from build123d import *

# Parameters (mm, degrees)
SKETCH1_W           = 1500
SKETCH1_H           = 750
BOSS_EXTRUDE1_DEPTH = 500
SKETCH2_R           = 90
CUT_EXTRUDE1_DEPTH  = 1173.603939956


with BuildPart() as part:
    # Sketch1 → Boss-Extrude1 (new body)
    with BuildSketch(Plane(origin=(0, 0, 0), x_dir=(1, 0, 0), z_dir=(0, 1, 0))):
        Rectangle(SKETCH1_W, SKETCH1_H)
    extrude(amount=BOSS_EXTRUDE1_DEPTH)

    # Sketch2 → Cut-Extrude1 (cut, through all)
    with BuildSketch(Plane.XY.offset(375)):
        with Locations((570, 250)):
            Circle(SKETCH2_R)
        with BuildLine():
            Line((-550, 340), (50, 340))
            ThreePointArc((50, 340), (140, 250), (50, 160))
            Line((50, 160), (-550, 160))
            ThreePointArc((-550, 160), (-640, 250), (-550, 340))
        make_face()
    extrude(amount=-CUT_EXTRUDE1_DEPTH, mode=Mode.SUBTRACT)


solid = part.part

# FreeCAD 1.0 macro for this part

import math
import FreeCAD as App
import Part
import Sketcher
from FreeCAD import Vector

doc = App.newDocument("Part")
body = doc.addObject("PartDesign::Body", "Body")

# Sketch on XZ plane
sketch1 = body.newObject("Sketcher::SketchObject", "Sketch")
sketch1.AttachmentSupport = (doc.getObject("XZ_Plane"), [""])
sketch1.MapMode = "FlatFace"
sketch1.addGeometry([
    Part.LineSegment(Vector(-750, -375, 0), Vector(-750, 375, 0)),
    Part.LineSegment(Vector(-750, 375, 0), Vector(750, 375, 0)),
    Part.LineSegment(Vector(750, 375, 0), Vector(750, -375, 0)),
    Part.LineSegment(Vector(750, -375, 0), Vector(-750, -375, 0)),
], False)
sketch1.addConstraint([
    Sketcher.Constraint("Coincident", 0, 2, 1, 1),
    Sketcher.Constraint("Coincident", 1, 2, 2, 1),
    Sketcher.Constraint("Coincident", 2, 2, 3, 1),
    Sketcher.Constraint("Coincident", 3, 2, 0, 1),
    Sketcher.Constraint("Vertical", 0),
    Sketcher.Constraint("Horizontal", 1),
    Sketcher.Constraint("Vertical", 2),
    Sketcher.Constraint("Horizontal", 3),
    Sketcher.Constraint("Symmetric", 0, 2, 2, 2, -1, 1),
    Sketcher.Constraint("DistanceX", 1, 1, 1, 2, 1500.0),
    Sketcher.Constraint("DistanceY", 0, 1, 0, 2, 750.0),
])
pad1 = body.newObject("PartDesign::Pad", "Pad")
pad1.Profile = sketch1
pad1.Length = 500
pad1.Reversed = True

# Sketch on XY plane
sketch2 = body.newObject("Sketcher::SketchObject", "Sketch001")
sketch2.AttachmentSupport = (doc.getObject("XY_Plane"), [""])
sketch2.MapMode = "FlatFace"
sketch2.AttachmentOffset = App.Placement(Vector(0, 0, 375), App.Rotation())
sketch2.addGeometry([
    Part.Circle(Vector(570, 250, 0), Vector(0, 0, 1), 90),  # 0
    Part.LineSegment(Vector(50, 340, 0), Vector(-550, 340, 0)),  # 1
    Part.ArcOfCircle(Part.Circle(Vector(-550, 250, 0), Vector(0, 0, 1), 90), math.radians(90), math.radians(270)),  # 2
    Part.LineSegment(Vector(-550, 160, 0), Vector(50, 160, 0)),  # 3
    Part.ArcOfCircle(Part.Circle(Vector(50, 250, 0), Vector(0, 0, 1), 90), math.radians(-90), math.radians(90)),  # 4
], False)
sketch2.addConstraint([
    Sketcher.Constraint("Tangent", 1, 2, 2, 1),
    Sketcher.Constraint("Tangent", 2, 2, 3, 1),
    Sketcher.Constraint("Tangent", 3, 2, 4, 1),
    Sketcher.Constraint("Tangent", 4, 2, 1, 1),
    Sketcher.Constraint("Horizontal", 1),
    Sketcher.Constraint("Horizontal", 3),
    Sketcher.Constraint("Equal", 0, 2),
    Sketcher.Constraint("Horizontal", 0, 3, 2, 3),
    Sketcher.Constraint("Diameter", 0, 180.0),
    Sketcher.Constraint("DistanceX", 1, 2, 1, 1, 600.0),
    Sketcher.Constraint("DistanceX", -1, 1, 0, 3, 570.0),
    Sketcher.Constraint("DistanceY", -1, 1, 0, 3, 250.0),
    Sketcher.Constraint("DistanceX", 2, 3, -1, 1, 550.0),
])
pocket1 = body.newObject("PartDesign::Pocket", "Pocket")
pocket1.Profile = sketch2
pocket1.Type = "ThroughAll"

doc.recompute()
